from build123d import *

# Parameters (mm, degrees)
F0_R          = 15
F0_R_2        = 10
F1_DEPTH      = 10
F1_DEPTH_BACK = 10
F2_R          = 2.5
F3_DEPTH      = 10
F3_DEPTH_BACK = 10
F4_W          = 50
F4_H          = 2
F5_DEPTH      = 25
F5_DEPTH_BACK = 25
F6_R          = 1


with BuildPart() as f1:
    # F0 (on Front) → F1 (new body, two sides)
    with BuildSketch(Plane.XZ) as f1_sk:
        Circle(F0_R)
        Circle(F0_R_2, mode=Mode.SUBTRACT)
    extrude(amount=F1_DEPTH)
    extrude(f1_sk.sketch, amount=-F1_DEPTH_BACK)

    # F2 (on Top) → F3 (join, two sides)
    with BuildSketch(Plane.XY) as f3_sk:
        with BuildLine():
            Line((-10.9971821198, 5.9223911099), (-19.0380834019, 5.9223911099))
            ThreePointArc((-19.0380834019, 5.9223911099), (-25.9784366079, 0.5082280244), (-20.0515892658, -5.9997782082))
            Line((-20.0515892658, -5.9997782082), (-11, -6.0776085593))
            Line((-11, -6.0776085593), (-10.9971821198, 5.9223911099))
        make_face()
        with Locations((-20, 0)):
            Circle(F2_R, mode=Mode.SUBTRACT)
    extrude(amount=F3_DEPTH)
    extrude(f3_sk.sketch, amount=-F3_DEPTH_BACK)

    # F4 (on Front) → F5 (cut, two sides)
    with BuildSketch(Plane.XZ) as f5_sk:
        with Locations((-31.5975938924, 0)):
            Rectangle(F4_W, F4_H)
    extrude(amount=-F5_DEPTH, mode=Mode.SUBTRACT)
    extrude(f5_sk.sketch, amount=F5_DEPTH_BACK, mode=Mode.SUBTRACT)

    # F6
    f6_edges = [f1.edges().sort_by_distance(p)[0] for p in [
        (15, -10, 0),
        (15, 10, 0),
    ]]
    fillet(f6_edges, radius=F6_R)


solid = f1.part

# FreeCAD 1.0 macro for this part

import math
import FreeCAD as App
import Part
import Sketcher
Q = App.Units.Quantity


def edges_at(feature, points):
    """Names of the edges that pass closest to the given points."""
    edges = feature.Shape.Edges
    near = lambda p: min(range(len(edges)), key=lambda i: edges[i].distToShape(Part.Vertex(*p))[0])
    return sorted({f"Edge{near(p) + 1}" for p in points})


def add_polygon(sketch, points):
    """Adds a closed chain of lines whose ends are joined by coincident constraints."""
    first, n = sketch.GeometryCount, len(points)
    for a, b in zip(points, points[1:] + points[:1]):
        sketch.addGeometry(Part.LineSegment(App.Vector(*a, 0), App.Vector(*b, 0)), False)
    for i in range(n):
        sketch.addConstraint(Sketcher.Constraint("Coincident", first + i, 2, first + (i + 1) % n, 1))

doc = App.newDocument("Part")
body = doc.addObject("PartDesign::Body", "Body")

# Sketch on XZ plane
sketch1 = body.newObject("Sketcher::SketchObject", "Sketch")
sketch1.AttachmentSupport = (doc.getObject("XZ_Plane"), [""])
sketch1.MapMode = "FlatFace"
sketch1.addGeometry(Part.Circle(App.Vector(0, 0, 0), App.Vector(0, 0, 1), 15), False)
sketch1.addGeometry(Part.Circle(App.Vector(0, 0, 0), App.Vector(0, 0, 1), 10), False)
sketch1.addConstraint(Sketcher.Constraint("Coincident", 0, 3, -1, 1))
sketch1.addConstraint(Sketcher.Constraint("Coincident", 1, 3, -1, 1))
sketch1.addConstraint(Sketcher.Constraint("Diameter", 0, Q("30 mm")))
sketch1.addConstraint(Sketcher.Constraint("Diameter", 1, Q("20 mm")))
pad1 = body.newObject("PartDesign::Pad", "Pad")
pad1.Profile = sketch1
pad1.Type = "TwoLengths"
pad1.Length = 10
pad1.Length2 = 10

# Sketch on XY plane
sketch2 = body.newObject("Sketcher::SketchObject", "Sketch001")
sketch2.AttachmentSupport = (doc.getObject("XY_Plane"), [""])
sketch2.MapMode = "FlatFace"
sketch2.addGeometry(Part.LineSegment(App.Vector(-11, 5.9, 0), App.Vector(-19, 5.9, 0)), False)
sketch2.addGeometry(Part.ArcOfCircle(Part.Circle(App.Vector(-20, 0, 0), App.Vector(0, 0, 1), 6), math.radians(81), math.radians(270)), False)
sketch2.addGeometry(Part.LineSegment(App.Vector(-20.1, -6, 0), App.Vector(-11, -6.1, 0)), False)
sketch2.addGeometry(Part.LineSegment(App.Vector(-11, -6.1, 0), App.Vector(-11, 5.9, 0)), False)
sketch2.addGeometry(Part.Circle(App.Vector(-20, 0, 0), App.Vector(0, 0, 1), 2.5), False)
sketch2.addConstraint(Sketcher.Constraint("Coincident", 0, 2, 1, 1))
sketch2.addConstraint(Sketcher.Constraint("Tangent", 1, 2, 2, 1))
sketch2.addConstraint(Sketcher.Constraint("Coincident", 2, 2, 3, 1))
sketch2.addConstraint(Sketcher.Constraint("Coincident", 3, 2, 0, 1))
sketch2.addConstraint(Sketcher.Constraint("Horizontal", 0))
sketch2.addConstraint(Sketcher.Constraint("Coincident", 4, 3, 1, 3))
sketch2.addConstraint(Sketcher.Constraint("PointOnObject", 1, 3, -1))
sketch2.addConstraint(Sketcher.Constraint("Diameter", 4, Q("5 mm")))
sketch2.addConstraint(Sketcher.Constraint("Radius", 1, Q("6 mm")))
sketch2.addConstraint(Sketcher.Constraint("Distance", 3, Q("12 mm")))
sketch2.addConstraint(Sketcher.Constraint("DistanceX", 1, 3, -1, 1, Q("20 mm")))
sketch2.addConstraint(Sketcher.Constraint("DistanceX", 2, 2, -1, 1, Q("11 mm")))
sketch2.addConstraint(Sketcher.Constraint("DistanceX", 0, 2, 0, 1, Q("8.040901 mm")))
sketch2.addConstraint(Sketcher.Constraint("DistanceY", -1, 1, 0, 2, Q("5.922391 mm")))
pad2 = body.newObject("PartDesign::Pad", "Pad001")
pad2.Profile = sketch2
pad2.Type = "TwoLengths"
pad2.Length = 10
pad2.Length2 = 10

# Sketch on XZ plane
sketch3 = body.newObject("Sketcher::SketchObject", "Sketch002")
sketch3.AttachmentSupport = (doc.getObject("XZ_Plane"), [""])
sketch3.MapMode = "FlatFace"
add_polygon(sketch3, [(-56.6, 1), (-56.6, -1), (-6.6, -1), (-6.6, 1)])  # lines 0-3
sketch3.addConstraint(Sketcher.Constraint("Vertical", 0))
sketch3.addConstraint(Sketcher.Constraint("Horizontal", 1))
sketch3.addConstraint(Sketcher.Constraint("Vertical", 2))
sketch3.addConstraint(Sketcher.Constraint("Horizontal", 3))
sketch3.addConstraint(Sketcher.Constraint("DistanceX", 1, 1, 1, 2, Q("50 mm")))
sketch3.addConstraint(Sketcher.Constraint("DistanceY", 0, 2, 0, 1, Q("2 mm")))
sketch3.addConstraint(Sketcher.Constraint("DistanceY", 0, 2, -1, 1, Q("1 mm")))
sketch3.addConstraint(Sketcher.Constraint("DistanceX", 0, 2, -1, 1, Q("56.597594 mm")))
pocket1 = body.newObject("PartDesign::Pocket", "Pocket")
pocket1.Profile = sketch3
pocket1.Type = "ThroughAll"
pocket1.Midplane = True
doc.recompute()

fillet = body.newObject("PartDesign::Fillet", "Fillet")
fillet.Base = (pocket1, edges_at(pocket1, [(15, -10, 0), (15, 10, 0)]))
fillet.Radius = 1

doc.recompute()
